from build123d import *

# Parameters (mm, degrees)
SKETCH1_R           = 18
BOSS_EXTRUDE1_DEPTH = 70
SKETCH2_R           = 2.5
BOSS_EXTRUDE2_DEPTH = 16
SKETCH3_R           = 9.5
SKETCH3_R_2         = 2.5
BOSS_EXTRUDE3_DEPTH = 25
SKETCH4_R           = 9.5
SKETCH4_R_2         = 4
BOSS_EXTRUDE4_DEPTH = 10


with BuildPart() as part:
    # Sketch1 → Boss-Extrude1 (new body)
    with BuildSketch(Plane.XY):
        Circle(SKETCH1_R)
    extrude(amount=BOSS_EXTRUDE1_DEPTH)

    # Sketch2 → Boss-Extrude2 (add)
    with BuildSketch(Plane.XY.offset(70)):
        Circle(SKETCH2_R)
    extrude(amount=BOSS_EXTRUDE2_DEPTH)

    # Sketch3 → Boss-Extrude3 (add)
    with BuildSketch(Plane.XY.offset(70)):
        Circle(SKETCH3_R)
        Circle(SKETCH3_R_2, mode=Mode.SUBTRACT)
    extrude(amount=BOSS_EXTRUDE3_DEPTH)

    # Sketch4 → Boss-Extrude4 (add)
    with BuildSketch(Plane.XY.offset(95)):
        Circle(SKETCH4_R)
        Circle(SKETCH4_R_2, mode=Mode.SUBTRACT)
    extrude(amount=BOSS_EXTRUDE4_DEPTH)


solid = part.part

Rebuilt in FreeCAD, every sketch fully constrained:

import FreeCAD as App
import Part
import Sketcher

V = App.Vector
Q = App.Units.Quantity

doc = App.newDocument("Part")
body = doc.addObject("PartDesign::Body", "Body")

# Sketch on XY plane
sketch1 = doc.addObject("Sketcher::SketchObject", "Sketch")
body.addObject(sketch1)
sketch1.AttachmentSupport = (doc.XY_Plane, [""])
sketch1.MapMode = "FlatFace"
sketch1.addGeometry(Part.Circle(V(0, 0, 0), V(0, 0, 1), 18), False)
sketch1.addConstraint([
    Sketcher.Constraint("Coincident", 0, 3, -1, 1),
    Sketcher.Constraint("Diameter", 0, Q("36 mm")),
])
pad1 = doc.addObject("PartDesign::Pad", "Pad")
body.addObject(pad1)
pad1.Profile = sketch1
pad1.Length = 70

# Sketch on XY plane
sketch2 = doc.addObject("Sketcher::SketchObject", "Sketch001")
body.addObject(sketch2)
sketch2.AttachmentSupport = (doc.XY_Plane, [""])
sketch2.MapMode = "FlatFace"
sketch2.AttachmentOffset = App.Placement(V(0, 0, 70), App.Rotation())
sketch2.addGeometry(Part.Circle(V(0, 0, 0), V(0, 0, 1), 2.5), False)
sketch2.addConstraint([
    Sketcher.Constraint("Coincident", 0, 3, -1, 1),
    Sketcher.Constraint("Diameter", 0, Q("5 mm")),
])
pad2 = doc.addObject("PartDesign::Pad", "Pad001")
body.addObject(pad2)
pad2.Profile = sketch2
pad2.Length = 16

# Sketch on XY plane
sketch3 = doc.addObject("Sketcher::SketchObject", "Sketch002")
body.addObject(sketch3)
sketch3.AttachmentSupport = (doc.XY_Plane, [""])
sketch3.MapMode = "FlatFace"
sketch3.AttachmentOffset = App.Placement(V(0, 0, 70), App.Rotation())
sketch3.addGeometry([
    Part.Circle(V(0, 0, 0), V(0, 0, 1), 9.5),
    Part.Circle(V(0, 0, 0), V(0, 0, 1), 2.5),
], False)
sketch3.addConstraint([
    Sketcher.Constraint("Coincident", 0, 3, -1, 1),
    Sketcher.Constraint("Coincident", 1, 3, -1, 1),
    Sketcher.Constraint("Diameter", 0, Q("19 mm")),
    Sketcher.Constraint("Diameter", 1, Q("5 mm")),
])
pad3 = doc.addObject("PartDesign::Pad", "Pad002")
body.addObject(pad3)
pad3.Profile = sketch3
pad3.Length = 25

# Sketch on XY plane
sketch4 = doc.addObject("Sketcher::SketchObject", "Sketch003")
body.addObject(sketch4)
sketch4.AttachmentSupport = (doc.XY_Plane, [""])
sketch4.MapMode = "FlatFace"
sketch4.AttachmentOffset = App.Placement(V(0, 0, 95), App.Rotation())
sketch4.addGeometry([
    Part.Circle(V(0, 0, 0), V(0, 0, 1), 9.5),
    Part.Circle(V(0, 0, 0), V(0, 0, 1), 4),
], False)
sketch4.addConstraint([
    Sketcher.Constraint("Coincident", 0, 3, -1, 1),
    Sketcher.Constraint("Coincident", 1, 3, -1, 1),
    Sketcher.Constraint("Diameter", 0, Q("19 mm")),
    Sketcher.Constraint("Diameter", 1, Q("8 mm")),
])
pad4 = doc.addObject("PartDesign::Pad", "Pad003")
body.addObject(pad4)
pad4.Profile = sketch4
pad4.Length = 10

doc.recompute()
